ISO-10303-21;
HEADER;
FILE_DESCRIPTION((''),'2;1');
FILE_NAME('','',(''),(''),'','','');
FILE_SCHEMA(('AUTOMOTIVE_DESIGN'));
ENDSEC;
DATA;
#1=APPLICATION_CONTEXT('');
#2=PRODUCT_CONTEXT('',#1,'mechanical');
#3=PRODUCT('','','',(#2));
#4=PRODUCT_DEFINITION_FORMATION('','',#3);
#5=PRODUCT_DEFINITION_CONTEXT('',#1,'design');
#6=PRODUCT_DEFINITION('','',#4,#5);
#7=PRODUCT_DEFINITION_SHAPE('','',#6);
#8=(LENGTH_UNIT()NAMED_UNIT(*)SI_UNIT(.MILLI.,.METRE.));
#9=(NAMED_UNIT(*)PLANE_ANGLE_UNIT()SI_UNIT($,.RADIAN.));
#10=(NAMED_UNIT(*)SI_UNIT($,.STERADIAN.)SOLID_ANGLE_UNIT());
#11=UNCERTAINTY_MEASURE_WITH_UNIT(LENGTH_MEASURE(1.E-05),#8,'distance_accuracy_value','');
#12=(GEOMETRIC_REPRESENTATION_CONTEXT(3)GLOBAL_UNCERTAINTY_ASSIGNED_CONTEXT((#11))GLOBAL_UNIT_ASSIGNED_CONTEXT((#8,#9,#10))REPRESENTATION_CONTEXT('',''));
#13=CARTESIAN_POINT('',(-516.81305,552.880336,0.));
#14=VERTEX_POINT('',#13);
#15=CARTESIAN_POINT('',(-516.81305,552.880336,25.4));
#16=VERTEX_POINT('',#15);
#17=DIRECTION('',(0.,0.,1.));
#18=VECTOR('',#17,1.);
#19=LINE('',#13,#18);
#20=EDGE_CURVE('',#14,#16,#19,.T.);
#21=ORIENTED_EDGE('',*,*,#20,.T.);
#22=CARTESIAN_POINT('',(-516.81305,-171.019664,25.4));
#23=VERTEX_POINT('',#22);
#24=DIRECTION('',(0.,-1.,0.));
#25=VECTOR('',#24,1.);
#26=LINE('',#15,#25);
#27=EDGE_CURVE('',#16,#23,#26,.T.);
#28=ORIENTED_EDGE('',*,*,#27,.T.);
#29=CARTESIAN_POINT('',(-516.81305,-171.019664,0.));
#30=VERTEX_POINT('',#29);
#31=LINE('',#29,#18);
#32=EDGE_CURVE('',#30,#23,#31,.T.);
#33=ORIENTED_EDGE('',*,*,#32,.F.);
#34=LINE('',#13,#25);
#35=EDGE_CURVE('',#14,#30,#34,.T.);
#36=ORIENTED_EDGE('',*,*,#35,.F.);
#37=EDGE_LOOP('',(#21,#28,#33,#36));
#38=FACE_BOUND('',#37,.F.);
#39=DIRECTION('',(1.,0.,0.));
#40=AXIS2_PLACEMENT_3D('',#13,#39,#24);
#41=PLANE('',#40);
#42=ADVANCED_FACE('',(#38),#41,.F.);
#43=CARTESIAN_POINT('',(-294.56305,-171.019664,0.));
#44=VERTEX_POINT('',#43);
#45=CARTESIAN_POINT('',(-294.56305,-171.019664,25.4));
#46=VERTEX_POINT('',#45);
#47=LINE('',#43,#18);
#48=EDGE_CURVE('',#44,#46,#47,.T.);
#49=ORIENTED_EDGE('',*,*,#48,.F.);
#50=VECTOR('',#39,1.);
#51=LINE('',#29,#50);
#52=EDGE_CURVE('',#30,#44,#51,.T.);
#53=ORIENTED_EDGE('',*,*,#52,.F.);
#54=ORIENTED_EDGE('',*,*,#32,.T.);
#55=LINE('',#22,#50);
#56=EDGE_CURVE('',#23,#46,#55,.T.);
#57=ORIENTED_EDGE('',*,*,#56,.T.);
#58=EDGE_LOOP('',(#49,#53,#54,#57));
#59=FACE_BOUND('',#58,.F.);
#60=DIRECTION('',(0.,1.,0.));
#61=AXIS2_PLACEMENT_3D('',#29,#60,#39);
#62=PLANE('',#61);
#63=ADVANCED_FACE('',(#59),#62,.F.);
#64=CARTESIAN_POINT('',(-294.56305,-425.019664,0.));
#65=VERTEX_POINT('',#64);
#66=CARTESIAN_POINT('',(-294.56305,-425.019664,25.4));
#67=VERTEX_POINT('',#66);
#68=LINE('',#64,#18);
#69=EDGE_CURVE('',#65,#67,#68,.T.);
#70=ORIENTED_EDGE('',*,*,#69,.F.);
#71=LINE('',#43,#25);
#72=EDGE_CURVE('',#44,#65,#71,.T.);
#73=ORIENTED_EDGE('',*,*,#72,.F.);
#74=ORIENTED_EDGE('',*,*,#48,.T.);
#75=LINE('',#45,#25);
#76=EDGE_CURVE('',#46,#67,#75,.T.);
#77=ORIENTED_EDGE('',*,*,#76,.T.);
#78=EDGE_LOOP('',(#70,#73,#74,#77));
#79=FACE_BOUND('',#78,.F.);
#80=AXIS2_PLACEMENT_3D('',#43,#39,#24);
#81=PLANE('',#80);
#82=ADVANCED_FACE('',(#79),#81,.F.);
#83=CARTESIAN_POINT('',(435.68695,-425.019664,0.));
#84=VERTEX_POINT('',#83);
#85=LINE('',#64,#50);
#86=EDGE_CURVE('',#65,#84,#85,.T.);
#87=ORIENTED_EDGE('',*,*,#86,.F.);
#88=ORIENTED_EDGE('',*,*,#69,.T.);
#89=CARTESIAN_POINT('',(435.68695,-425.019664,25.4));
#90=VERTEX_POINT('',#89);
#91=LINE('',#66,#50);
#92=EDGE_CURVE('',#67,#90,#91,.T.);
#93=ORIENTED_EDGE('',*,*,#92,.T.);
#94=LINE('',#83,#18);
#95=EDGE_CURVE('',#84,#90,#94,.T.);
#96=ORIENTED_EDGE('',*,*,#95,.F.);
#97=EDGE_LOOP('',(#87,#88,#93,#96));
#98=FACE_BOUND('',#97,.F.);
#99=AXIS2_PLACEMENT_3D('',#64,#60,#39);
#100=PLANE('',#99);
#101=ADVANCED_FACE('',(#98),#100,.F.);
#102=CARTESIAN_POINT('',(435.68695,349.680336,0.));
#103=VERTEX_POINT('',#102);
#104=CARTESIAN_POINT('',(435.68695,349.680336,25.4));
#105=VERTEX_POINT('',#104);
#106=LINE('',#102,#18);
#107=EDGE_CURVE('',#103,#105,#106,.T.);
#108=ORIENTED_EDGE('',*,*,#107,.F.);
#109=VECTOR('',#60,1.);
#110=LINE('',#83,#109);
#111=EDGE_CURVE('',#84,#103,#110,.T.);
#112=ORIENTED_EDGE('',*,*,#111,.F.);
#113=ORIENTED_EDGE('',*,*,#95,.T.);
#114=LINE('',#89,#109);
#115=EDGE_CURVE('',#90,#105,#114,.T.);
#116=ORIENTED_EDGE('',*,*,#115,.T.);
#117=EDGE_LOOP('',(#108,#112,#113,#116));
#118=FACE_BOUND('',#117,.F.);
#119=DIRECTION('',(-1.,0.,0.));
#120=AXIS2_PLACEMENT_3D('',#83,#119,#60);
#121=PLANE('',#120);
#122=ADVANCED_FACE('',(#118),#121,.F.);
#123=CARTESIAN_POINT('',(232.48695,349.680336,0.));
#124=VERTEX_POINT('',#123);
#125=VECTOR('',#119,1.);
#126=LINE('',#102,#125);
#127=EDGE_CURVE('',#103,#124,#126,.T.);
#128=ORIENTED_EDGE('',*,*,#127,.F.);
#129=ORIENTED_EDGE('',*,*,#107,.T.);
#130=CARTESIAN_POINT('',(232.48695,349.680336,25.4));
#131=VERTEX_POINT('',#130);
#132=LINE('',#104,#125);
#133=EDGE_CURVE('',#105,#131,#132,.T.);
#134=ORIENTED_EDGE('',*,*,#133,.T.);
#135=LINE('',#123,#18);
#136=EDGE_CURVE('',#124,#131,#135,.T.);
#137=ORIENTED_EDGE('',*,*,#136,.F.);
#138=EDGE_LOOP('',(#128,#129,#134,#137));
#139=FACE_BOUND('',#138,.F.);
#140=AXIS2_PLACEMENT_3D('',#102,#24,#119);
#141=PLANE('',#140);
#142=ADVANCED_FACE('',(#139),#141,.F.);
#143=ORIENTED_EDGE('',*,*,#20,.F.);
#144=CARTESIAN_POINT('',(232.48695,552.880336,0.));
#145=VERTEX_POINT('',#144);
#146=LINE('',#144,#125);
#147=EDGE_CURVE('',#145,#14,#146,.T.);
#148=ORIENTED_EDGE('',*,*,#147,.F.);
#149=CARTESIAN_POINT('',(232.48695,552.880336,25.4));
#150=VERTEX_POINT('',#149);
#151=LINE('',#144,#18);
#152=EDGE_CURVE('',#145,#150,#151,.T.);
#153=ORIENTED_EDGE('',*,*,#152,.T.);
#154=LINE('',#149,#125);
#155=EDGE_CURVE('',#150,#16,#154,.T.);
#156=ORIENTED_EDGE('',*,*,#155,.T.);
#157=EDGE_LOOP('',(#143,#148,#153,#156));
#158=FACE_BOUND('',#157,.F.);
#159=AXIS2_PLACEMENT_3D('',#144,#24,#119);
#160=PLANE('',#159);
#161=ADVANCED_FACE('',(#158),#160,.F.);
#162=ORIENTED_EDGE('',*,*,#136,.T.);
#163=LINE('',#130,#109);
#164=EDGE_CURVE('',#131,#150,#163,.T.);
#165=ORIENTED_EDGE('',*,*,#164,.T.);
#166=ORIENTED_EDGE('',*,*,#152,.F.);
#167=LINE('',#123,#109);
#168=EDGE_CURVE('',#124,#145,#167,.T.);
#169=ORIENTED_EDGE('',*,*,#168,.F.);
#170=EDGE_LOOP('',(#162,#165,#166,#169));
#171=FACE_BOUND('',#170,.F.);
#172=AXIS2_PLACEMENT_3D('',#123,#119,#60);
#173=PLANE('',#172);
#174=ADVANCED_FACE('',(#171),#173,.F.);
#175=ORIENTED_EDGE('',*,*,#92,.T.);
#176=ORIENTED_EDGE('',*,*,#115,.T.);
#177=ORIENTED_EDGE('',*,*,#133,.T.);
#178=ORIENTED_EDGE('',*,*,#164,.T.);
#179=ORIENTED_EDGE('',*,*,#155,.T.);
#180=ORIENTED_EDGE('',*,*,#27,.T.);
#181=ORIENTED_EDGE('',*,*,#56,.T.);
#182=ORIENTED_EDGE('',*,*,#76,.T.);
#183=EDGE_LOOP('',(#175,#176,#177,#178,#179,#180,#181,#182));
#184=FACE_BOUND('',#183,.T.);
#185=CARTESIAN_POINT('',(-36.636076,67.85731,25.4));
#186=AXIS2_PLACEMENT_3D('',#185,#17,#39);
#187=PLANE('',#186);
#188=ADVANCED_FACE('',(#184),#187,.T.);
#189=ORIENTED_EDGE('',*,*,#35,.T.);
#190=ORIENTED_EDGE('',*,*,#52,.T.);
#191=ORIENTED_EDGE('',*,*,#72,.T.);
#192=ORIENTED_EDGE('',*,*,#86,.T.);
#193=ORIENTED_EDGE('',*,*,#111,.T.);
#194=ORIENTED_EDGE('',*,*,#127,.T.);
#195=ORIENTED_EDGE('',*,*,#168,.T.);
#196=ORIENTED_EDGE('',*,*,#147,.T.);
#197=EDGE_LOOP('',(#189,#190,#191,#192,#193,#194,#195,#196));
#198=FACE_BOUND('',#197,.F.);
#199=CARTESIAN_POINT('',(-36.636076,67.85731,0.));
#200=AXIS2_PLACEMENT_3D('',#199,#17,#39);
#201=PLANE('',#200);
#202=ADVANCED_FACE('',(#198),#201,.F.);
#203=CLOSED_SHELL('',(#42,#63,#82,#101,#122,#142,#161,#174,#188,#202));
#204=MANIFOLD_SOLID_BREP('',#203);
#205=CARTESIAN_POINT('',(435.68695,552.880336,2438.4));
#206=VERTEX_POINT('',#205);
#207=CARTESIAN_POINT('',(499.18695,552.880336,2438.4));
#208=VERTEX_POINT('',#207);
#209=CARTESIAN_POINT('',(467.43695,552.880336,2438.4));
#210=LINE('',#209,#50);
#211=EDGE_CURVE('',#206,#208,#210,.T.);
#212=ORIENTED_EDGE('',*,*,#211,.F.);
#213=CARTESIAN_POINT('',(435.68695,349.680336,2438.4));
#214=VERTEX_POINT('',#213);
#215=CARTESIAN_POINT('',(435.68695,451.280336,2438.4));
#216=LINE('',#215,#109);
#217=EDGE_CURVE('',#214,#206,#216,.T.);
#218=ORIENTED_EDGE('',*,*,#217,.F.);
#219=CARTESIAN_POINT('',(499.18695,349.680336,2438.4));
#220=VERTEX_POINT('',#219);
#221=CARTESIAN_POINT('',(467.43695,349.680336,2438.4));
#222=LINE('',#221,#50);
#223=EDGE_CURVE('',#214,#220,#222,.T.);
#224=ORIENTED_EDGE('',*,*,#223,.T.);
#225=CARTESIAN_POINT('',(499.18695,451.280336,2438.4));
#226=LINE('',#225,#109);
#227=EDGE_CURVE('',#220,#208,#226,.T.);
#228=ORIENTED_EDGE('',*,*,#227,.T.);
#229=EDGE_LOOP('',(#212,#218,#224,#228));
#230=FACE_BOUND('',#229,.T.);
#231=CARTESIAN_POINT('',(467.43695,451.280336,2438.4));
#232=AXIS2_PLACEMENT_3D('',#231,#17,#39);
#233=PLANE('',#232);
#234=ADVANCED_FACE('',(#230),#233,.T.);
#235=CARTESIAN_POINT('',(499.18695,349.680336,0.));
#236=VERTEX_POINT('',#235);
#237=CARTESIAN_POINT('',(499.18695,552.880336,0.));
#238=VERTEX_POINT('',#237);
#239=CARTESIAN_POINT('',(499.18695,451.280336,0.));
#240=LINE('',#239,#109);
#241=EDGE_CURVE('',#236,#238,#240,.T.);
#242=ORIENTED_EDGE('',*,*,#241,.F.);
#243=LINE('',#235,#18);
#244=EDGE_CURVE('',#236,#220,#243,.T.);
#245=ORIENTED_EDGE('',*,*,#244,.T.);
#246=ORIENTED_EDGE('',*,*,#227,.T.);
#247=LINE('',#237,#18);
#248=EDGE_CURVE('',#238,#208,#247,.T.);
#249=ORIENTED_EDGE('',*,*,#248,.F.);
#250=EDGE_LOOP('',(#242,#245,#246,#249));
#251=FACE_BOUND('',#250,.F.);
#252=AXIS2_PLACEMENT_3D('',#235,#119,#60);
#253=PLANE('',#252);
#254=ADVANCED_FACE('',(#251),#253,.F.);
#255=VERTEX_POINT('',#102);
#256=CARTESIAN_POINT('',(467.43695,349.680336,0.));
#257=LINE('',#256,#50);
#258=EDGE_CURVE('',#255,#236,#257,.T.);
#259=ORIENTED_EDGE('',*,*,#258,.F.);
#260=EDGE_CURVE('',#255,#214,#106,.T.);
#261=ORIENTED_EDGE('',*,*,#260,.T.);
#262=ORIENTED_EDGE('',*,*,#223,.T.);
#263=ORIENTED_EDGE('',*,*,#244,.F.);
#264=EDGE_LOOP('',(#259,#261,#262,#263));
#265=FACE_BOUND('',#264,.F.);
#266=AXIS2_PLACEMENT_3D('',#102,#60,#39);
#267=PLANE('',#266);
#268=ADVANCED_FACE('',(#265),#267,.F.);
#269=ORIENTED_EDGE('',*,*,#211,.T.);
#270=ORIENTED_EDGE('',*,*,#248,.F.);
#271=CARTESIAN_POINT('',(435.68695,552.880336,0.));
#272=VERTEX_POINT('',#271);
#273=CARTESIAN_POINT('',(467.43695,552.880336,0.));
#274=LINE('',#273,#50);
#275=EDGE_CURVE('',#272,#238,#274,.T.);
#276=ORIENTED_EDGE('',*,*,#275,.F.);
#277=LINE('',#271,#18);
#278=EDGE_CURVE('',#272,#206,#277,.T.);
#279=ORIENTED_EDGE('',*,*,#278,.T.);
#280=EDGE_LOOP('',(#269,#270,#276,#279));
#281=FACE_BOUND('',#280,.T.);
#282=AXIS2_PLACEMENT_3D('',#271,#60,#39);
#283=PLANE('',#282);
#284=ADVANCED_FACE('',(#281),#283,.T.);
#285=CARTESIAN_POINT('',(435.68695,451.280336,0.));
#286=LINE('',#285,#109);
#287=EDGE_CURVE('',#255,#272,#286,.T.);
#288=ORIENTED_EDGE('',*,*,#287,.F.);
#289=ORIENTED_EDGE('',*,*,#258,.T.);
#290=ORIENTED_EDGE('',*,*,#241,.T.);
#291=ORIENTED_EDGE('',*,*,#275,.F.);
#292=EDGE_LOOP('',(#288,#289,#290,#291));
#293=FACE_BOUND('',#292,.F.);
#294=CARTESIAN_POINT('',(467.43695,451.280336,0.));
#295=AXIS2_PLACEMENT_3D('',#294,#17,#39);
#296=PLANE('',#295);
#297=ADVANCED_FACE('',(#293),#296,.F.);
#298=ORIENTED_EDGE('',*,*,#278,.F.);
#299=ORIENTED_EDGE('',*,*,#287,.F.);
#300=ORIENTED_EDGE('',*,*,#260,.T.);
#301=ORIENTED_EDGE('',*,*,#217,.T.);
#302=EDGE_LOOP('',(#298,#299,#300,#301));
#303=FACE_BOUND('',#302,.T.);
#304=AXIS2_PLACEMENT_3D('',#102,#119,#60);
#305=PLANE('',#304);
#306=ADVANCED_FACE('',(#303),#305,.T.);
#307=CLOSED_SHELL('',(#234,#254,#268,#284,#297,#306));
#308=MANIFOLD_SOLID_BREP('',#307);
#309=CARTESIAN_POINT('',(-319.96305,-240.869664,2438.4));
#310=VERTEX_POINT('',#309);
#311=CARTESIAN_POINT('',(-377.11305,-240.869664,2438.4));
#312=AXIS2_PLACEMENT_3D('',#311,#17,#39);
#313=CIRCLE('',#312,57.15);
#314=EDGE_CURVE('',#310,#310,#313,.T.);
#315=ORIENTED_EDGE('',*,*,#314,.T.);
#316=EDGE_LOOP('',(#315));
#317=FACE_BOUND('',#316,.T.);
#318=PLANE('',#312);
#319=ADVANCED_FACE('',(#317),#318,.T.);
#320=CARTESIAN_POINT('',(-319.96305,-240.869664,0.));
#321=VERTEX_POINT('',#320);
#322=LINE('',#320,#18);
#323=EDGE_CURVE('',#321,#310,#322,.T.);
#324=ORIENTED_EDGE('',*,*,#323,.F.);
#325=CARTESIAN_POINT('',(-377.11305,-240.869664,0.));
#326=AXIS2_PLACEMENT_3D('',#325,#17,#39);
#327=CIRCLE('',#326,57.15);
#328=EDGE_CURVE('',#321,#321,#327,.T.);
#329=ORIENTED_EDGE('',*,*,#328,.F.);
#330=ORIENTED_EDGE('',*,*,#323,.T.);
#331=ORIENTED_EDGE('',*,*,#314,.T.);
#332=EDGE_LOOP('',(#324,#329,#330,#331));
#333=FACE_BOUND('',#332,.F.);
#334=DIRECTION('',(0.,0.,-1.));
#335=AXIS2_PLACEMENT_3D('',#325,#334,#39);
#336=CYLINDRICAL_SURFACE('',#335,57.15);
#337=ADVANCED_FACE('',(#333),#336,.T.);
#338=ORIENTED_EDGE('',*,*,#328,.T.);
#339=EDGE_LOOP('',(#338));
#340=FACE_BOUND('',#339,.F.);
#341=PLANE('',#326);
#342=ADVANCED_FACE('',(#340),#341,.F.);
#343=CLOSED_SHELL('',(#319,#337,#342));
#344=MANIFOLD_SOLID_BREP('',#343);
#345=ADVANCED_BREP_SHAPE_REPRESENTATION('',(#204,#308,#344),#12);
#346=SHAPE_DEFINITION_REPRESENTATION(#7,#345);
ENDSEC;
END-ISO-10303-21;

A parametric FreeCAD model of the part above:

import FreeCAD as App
import Part
import Sketcher

V = App.Vector
Q = App.Units.Quantity

doc = App.newDocument("Part")
body = doc.addObject("PartDesign::Body", "Body")
body.AllowCompound = True

# Sketch on XY plane
sketch1 = body.newObject("Sketcher::SketchObject", "Sketch")
sketch1.AttachmentSupport = (doc.getObject("XY_Plane"), [""])
sketch1.MapMode = "FlatFace"
sketch1.addGeometry([
    Part.LineSegment(V(436, 553, 0), V(436, 350, 0)),  # 0
    Part.LineSegment(V(436, 350, 0), V(499, 350, 0)),  # 1
    Part.LineSegment(V(499, 350, 0), V(499, 553, 0)),  # 2
    Part.LineSegment(V(499, 553, 0), V(436, 553, 0)),  # 3
    Part.Circle(V(-377, -241, 0), V(0, 0, 1), 57),  # 4
], False)
sketch1.addConstraint([
    Sketcher.Constraint("Coincident", 0, 2, 1, 1),
    Sketcher.Constraint("Coincident", 1, 2, 2, 1),
    Sketcher.Constraint("Coincident", 2, 2, 3, 1),
    Sketcher.Constraint("Coincident", 3, 2, 0, 1),
    Sketcher.Constraint("Vertical", 0),
    Sketcher.Constraint("Horizontal", 1),
    Sketcher.Constraint("Vertical", 2),
    Sketcher.Constraint("Horizontal", 3),
    Sketcher.Constraint("Diameter", 4, Q("4.5 in")),
    Sketcher.Constraint("DistanceY", 0, 2, 0, 1, Q("8 in")),
    Sketcher.Constraint("DistanceX", 1, 1, 1, 2, Q("2.5 in")),
    Sketcher.Constraint("DistanceX", 4, 3, 0, 2, Q("32 in")),
    Sketcher.Constraint("DistanceY", 4, 3, 0, 2, Q("23.25 in")),
    Sketcher.Constraint("DistanceX", 4, 3, -1, 1, Q("377.11305 mm")),
    Sketcher.Constraint("DistanceY", 4, 3, -1, 1, Q("240.869664 mm")),
])
pad1 = body.newObject("PartDesign::Pad", "Pad")
pad1.Profile = sketch1
pad1.Length = Q("96 in")
body2 = doc.addObject("PartDesign::Body", "Body001")

# Sketch on XY plane
sketch2 = body2.newObject("Sketcher::SketchObject", "Sketch001")
sketch2.AttachmentSupport = (doc.getObject("XY_Plane001"), [""])
sketch2.MapMode = "FlatFace"
sketch2.addGeometry([
    Part.LineSegment(V(232, 553, 0), V(-517, 553, 0)),  # 0
    Part.LineSegment(V(-517, 553, 0), V(-517, -171, 0)),  # 1
    Part.LineSegment(V(-517, -171, 0), V(-295, -171, 0)),  # 2
    Part.LineSegment(V(-295, -171, 0), V(-295, -425, 0)),  # 3
    Part.LineSegment(V(-295, -425, 0), V(436, -425, 0)),  # 4
    Part.LineSegment(V(436, -425, 0), V(436, 350, 0)),  # 5
    Part.LineSegment(V(436, 350, 0), V(232, 350, 0)),  # 6
    Part.LineSegment(V(232, 350, 0), V(232, 553, 0)),  # 7
], False)
sketch2.addConstraint([
    Sketcher.Constraint("Coincident", 0, 2, 1, 1),
    Sketcher.Constraint("Coincident", 1, 2, 2, 1),
    Sketcher.Constraint("Coincident", 2, 2, 3, 1),
    Sketcher.Constraint("Coincident", 3, 2, 4, 1),
    Sketcher.Constraint("Coincident", 4, 2, 5, 1),
    Sketcher.Constraint("Coincident", 5, 2, 6, 1),
    Sketcher.Constraint("Coincident", 6, 2, 7, 1),
    Sketcher.Constraint("Coincident", 7, 2, 0, 1),
    Sketcher.Constraint("Horizontal", 0),
    Sketcher.Constraint("Vertical", 1),
    Sketcher.Constraint("Horizontal", 2),
    Sketcher.Constraint("Vertical", 3),
    Sketcher.Constraint("Horizontal", 4),
    Sketcher.Constraint("Vertical", 5),
    Sketcher.Constraint("Horizontal", 6),
    Sketcher.Constraint("Vertical", 7),
    Sketcher.Constraint("Equal", 6, 7),
    Sketcher.Constraint("DistanceX", 6, 2, 6, 1, Q("8 in")),
    Sketcher.Constraint("DistanceY", 3, 2, 3, 1, Q("10 in")),
    Sketcher.Constraint("DistanceX", 0, 2, 0, 1, Q("29.5 in")),
    Sketcher.Constraint("DistanceY", 1, 2, 1, 1, Q("28.5 in")),
    Sketcher.Constraint("DistanceX", 2, 1, 2, 2, Q("8.75 in")),
    Sketcher.Constraint("DistanceX", 0, 2, -1, 1, Q("516.81305 mm")),
    Sketcher.Constraint("DistanceY", -1, 1, 0, 2, Q("552.880336 mm")),
])
pad2 = body2.newObject("PartDesign::Pad", "Pad001")
pad2.Profile = sketch2
pad2.Length = Q("1 in")

doc.recompute()
